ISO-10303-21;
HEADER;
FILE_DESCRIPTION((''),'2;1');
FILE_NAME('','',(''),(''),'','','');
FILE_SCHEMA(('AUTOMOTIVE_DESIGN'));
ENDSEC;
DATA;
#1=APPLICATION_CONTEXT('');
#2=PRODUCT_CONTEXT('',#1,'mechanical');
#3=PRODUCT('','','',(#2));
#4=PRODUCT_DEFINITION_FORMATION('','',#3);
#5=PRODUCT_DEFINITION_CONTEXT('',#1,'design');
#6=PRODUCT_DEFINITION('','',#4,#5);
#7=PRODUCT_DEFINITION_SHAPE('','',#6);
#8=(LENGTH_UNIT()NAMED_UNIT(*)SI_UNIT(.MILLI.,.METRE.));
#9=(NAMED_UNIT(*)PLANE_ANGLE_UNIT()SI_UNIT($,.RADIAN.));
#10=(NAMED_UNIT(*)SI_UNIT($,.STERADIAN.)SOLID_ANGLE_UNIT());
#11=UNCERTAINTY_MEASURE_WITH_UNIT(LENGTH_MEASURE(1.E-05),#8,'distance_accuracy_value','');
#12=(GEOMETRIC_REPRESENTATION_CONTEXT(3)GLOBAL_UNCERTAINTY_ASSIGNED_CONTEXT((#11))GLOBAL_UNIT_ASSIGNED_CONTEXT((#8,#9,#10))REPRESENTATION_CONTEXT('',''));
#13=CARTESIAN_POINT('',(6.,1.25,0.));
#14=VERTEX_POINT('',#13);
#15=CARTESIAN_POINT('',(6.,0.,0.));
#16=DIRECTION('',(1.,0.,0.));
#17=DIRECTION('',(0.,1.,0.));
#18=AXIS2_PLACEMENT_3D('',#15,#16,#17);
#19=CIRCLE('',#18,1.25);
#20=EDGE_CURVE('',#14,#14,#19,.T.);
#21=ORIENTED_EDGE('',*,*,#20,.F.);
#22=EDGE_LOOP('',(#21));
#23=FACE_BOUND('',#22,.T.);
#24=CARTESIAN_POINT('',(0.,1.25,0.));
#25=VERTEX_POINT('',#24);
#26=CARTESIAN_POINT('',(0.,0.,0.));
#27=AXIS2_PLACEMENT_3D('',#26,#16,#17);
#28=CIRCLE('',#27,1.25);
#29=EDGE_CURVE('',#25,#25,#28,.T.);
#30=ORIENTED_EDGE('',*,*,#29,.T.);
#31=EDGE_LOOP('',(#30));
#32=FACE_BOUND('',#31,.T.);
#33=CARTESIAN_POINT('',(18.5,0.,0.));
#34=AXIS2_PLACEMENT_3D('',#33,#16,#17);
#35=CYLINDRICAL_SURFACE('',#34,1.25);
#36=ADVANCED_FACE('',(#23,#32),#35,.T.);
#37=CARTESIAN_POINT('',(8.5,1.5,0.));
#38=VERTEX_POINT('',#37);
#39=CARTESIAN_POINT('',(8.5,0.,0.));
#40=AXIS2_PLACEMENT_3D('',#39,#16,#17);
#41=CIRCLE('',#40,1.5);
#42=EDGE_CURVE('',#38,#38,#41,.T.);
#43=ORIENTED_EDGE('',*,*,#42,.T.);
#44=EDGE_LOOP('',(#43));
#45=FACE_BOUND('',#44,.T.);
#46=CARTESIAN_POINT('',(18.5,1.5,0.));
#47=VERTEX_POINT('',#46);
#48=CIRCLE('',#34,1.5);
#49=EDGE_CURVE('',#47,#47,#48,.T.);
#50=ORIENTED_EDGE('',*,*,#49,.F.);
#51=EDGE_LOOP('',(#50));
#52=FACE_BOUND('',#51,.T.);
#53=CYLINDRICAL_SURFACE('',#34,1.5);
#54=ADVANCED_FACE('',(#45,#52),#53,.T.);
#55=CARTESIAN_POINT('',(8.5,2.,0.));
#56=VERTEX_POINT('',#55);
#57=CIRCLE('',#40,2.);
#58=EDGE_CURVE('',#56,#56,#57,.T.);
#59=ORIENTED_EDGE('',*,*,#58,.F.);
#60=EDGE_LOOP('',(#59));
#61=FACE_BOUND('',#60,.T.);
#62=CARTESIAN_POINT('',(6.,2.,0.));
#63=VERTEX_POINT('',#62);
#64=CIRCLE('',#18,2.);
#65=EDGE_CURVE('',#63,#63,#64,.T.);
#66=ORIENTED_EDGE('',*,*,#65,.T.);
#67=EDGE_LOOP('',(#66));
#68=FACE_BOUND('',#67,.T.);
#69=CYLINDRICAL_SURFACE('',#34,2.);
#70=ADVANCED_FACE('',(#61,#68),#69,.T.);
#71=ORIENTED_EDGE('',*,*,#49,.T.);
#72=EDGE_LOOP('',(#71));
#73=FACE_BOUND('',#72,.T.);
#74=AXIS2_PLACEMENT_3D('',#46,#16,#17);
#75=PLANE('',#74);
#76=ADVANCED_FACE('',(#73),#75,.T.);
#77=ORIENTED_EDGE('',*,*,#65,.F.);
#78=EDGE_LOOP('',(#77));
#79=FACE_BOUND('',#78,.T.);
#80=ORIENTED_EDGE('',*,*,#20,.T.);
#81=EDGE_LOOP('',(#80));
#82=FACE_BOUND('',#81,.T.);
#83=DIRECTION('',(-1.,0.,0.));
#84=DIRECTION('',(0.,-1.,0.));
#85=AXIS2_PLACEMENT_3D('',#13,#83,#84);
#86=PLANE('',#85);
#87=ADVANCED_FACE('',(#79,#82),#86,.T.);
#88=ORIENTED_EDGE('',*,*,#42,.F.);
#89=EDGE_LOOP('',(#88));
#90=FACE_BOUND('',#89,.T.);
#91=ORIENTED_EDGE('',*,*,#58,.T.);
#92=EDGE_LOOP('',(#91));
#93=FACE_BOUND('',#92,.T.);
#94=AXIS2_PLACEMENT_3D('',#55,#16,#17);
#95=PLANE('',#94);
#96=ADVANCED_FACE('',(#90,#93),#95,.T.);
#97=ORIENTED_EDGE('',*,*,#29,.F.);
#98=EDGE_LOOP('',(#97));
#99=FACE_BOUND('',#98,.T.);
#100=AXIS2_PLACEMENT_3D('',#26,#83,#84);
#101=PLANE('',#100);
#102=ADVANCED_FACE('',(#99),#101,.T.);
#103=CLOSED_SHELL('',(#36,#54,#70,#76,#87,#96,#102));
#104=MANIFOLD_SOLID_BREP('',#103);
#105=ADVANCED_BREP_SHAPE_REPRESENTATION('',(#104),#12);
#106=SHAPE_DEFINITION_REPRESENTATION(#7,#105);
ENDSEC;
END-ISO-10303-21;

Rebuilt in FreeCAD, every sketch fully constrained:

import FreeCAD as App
import Part
import Sketcher

V = App.Vector
Q = App.Units.Quantity


def add_polygon(sketch, points):
    """Adds a closed chain of lines whose ends are joined by coincident constraints."""
    first, n = sketch.GeometryCount, len(points)
    for a, b in zip(points, points[1:] + points[:1]):
        sketch.addGeometry(Part.LineSegment(App.Vector(*a, 0), App.Vector(*b, 0)), False)
    for i in range(n):
        sketch.addConstraint(Sketcher.Constraint("Coincident", first + i, 2, first + (i + 1) % n, 1))

doc = App.newDocument("Part")
body = doc.addObject("PartDesign::Body", "Body")

sketch1 = body.newObject("Sketcher::SketchObject", "Sketch")
sketch1.AttachmentSupport = (doc.getObject("XY_Plane"), [""])
sketch1.MapMode = "FlatFace"
add_polygon(sketch1, [(0, 1.2), (0, 0), (18.5, 0), (18.5, 1.5), (8.5, 1.5), (8.5, 2), (6, 2), (6, 1.2)])
sketch1.addConstraint([
    Sketcher.Constraint("Vertical", 0),
    Sketcher.Constraint("Horizontal", 1),
    Sketcher.Constraint("Vertical", 2),
    Sketcher.Constraint("Horizontal", 3),
    Sketcher.Constraint("Vertical", 4),
    Sketcher.Constraint("Horizontal", 5),
    Sketcher.Constraint("Vertical", 6),
    Sketcher.Constraint("Horizontal", 7),
    Sketcher.Constraint("Coincident", 0, 2, -1, 1),
    Sketcher.Constraint("DistanceX", 3, 2, 3, 1, Q("10 mm")),
    Sketcher.Constraint("DistanceX", 7, 2, 7, 1, Q("6 mm")),
    Sketcher.Constraint("DistanceX", 1, 1, 1, 2, Q("18.5 mm")),
    Sketcher.Constraint("DistanceY", 2, 1, 2, 2, Q("1.5 mm")),
    Sketcher.Constraint("DistanceY", 4, 1, 4, 2, Q("0.5 mm")),
    Sketcher.Constraint("DistanceY", 0, 2, 0, 1, Q("1.25 mm")),
])
revolution = body.newObject("PartDesign::Revolution", "Revolution")
revolution.Profile = sketch1
revolution.ReferenceAxis = (sketch1, ["H_Axis"])
revolution.Angle = 360

doc.recompute()
